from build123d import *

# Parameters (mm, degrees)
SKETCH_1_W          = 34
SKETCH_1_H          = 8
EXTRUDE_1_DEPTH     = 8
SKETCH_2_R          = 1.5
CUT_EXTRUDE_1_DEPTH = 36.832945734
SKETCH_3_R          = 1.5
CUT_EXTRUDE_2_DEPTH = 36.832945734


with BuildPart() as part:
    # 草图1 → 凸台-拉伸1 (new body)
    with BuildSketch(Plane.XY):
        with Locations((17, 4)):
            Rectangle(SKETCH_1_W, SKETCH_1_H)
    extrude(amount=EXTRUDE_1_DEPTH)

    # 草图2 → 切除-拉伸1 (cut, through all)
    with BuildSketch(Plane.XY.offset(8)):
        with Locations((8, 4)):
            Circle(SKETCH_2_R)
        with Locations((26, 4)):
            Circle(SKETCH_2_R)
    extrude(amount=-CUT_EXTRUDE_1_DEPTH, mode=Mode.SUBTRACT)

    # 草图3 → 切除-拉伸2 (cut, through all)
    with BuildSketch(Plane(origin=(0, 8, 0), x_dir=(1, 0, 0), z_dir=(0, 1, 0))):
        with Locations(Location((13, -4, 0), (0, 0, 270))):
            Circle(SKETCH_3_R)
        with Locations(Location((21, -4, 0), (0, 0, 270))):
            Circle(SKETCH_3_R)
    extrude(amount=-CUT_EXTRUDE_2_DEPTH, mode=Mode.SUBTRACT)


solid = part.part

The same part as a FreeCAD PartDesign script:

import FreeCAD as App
import Part
import Sketcher
Q = App.Units.Quantity


def add_polygon(sketch, points):
    """Adds a closed chain of lines whose ends are joined by coincident constraints."""
    first, n = sketch.GeometryCount, len(points)
    for a, b in zip(points, points[1:] + points[:1]):
        sketch.addGeometry(Part.LineSegment(App.Vector(*a, 0), App.Vector(*b, 0)), False)
    for i in range(n):
        sketch.addConstraint(Sketcher.Constraint("Coincident", first + i, 2, first + (i + 1) % n, 1))

doc = App.newDocument("Part")
body = doc.addObject("PartDesign::Body", "Body")

# Sketch on XY plane
sketch1 = body.newObject("Sketcher::SketchObject", "Sketch")
sketch1.AttachmentSupport = (doc.getObject("XY_Plane"), [""])
sketch1.MapMode = "FlatFace"
add_polygon(sketch1, [(0, 8), (0, 0), (34, 0), (34, 8)])  # lines 0-3
sketch1.addConstraint([
    Sketcher.Constraint("Vertical", 0),
    Sketcher.Constraint("Horizontal", 1),
    Sketcher.Constraint("Vertical", 2),
    Sketcher.Constraint("Horizontal", 3),
    Sketcher.Constraint("Coincident", 0, 2, -1, 1),
    Sketcher.Constraint("DistanceX", 1, 1, 1, 2, Q("34 mm")),
    Sketcher.Constraint("DistanceY", 0, 2, 0, 1, Q("8 mm")),
])
pad1 = body.newObject("PartDesign::Pad", "Pad")
pad1.Profile = sketch1
pad1.Length = 8

# Sketch on XY plane
sketch2 = body.newObject("Sketcher::SketchObject", "Sketch001")
sketch2.AttachmentSupport = (doc.getObject("XY_Plane"), [""])
sketch2.MapMode = "FlatFace"
sketch2.AttachmentOffset = App.Placement(App.Vector(0, 0, 8), App.Rotation())
sketch2.addGeometry([
    Part.Circle(App.Vector(8, 4, 0), App.Vector(0, 0, 1), 1.5),
    Part.Circle(App.Vector(26, 4, 0), App.Vector(0, 0, 1), 1.5),
], False)
sketch2.addConstraint([
    Sketcher.Constraint("Equal", 0, 1),
    Sketcher.Constraint("Horizontal", 0, 3, 1, 3),
    Sketcher.Constraint("Diameter", 0, Q("3 mm")),
    Sketcher.Constraint("DistanceX", -1, 1, 0, 3, Q("8 mm")),
    Sketcher.Constraint("DistanceY", -1, 1, 0, 3, Q("4 mm")),
    Sketcher.Constraint("DistanceX", -1, 1, 1, 3, Q("26 mm")),
])
pocket1 = body.newObject("PartDesign::Pocket", "Pocket")
pocket1.Profile = sketch2
pocket1.Type = "ThroughAll"

# Sketch on XZ plane
sketch3 = body.newObject("Sketcher::SketchObject", "Sketch002")
sketch3.AttachmentSupport = (doc.getObject("XZ_Plane"), [""])
sketch3.MapMode = "FlatFace"
sketch3.AttachmentOffset = App.Placement(App.Vector(0, 0, -8), App.Rotation())
sketch3.addGeometry([
    Part.Circle(App.Vector(13, 4, 0), App.Vector(0, 0, 1), 1.5),
    Part.Circle(App.Vector(21, 4, 0), App.Vector(0, 0, 1), 1.5),
], False)
sketch3.addConstraint([
    Sketcher.Constraint("Equal", 0, 1),
    Sketcher.Constraint("Horizontal", 0, 3, 1, 3),
    Sketcher.Constraint("Diameter", 0, Q("3 mm")),
    Sketcher.Constraint("DistanceX", -1, 1, 0, 3, Q("13 mm")),
    Sketcher.Constraint("DistanceY", -1, 1, 0, 3, Q("4 mm")),
    Sketcher.Constraint("DistanceX", -1, 1, 1, 3, Q("21 mm")),
])
pocket2 = body.newObject("PartDesign::Pocket", "Pocket001")
pocket2.Profile = sketch3
pocket2.Type = "ThroughAll"
pocket2.Reversed = True

doc.recompute()
